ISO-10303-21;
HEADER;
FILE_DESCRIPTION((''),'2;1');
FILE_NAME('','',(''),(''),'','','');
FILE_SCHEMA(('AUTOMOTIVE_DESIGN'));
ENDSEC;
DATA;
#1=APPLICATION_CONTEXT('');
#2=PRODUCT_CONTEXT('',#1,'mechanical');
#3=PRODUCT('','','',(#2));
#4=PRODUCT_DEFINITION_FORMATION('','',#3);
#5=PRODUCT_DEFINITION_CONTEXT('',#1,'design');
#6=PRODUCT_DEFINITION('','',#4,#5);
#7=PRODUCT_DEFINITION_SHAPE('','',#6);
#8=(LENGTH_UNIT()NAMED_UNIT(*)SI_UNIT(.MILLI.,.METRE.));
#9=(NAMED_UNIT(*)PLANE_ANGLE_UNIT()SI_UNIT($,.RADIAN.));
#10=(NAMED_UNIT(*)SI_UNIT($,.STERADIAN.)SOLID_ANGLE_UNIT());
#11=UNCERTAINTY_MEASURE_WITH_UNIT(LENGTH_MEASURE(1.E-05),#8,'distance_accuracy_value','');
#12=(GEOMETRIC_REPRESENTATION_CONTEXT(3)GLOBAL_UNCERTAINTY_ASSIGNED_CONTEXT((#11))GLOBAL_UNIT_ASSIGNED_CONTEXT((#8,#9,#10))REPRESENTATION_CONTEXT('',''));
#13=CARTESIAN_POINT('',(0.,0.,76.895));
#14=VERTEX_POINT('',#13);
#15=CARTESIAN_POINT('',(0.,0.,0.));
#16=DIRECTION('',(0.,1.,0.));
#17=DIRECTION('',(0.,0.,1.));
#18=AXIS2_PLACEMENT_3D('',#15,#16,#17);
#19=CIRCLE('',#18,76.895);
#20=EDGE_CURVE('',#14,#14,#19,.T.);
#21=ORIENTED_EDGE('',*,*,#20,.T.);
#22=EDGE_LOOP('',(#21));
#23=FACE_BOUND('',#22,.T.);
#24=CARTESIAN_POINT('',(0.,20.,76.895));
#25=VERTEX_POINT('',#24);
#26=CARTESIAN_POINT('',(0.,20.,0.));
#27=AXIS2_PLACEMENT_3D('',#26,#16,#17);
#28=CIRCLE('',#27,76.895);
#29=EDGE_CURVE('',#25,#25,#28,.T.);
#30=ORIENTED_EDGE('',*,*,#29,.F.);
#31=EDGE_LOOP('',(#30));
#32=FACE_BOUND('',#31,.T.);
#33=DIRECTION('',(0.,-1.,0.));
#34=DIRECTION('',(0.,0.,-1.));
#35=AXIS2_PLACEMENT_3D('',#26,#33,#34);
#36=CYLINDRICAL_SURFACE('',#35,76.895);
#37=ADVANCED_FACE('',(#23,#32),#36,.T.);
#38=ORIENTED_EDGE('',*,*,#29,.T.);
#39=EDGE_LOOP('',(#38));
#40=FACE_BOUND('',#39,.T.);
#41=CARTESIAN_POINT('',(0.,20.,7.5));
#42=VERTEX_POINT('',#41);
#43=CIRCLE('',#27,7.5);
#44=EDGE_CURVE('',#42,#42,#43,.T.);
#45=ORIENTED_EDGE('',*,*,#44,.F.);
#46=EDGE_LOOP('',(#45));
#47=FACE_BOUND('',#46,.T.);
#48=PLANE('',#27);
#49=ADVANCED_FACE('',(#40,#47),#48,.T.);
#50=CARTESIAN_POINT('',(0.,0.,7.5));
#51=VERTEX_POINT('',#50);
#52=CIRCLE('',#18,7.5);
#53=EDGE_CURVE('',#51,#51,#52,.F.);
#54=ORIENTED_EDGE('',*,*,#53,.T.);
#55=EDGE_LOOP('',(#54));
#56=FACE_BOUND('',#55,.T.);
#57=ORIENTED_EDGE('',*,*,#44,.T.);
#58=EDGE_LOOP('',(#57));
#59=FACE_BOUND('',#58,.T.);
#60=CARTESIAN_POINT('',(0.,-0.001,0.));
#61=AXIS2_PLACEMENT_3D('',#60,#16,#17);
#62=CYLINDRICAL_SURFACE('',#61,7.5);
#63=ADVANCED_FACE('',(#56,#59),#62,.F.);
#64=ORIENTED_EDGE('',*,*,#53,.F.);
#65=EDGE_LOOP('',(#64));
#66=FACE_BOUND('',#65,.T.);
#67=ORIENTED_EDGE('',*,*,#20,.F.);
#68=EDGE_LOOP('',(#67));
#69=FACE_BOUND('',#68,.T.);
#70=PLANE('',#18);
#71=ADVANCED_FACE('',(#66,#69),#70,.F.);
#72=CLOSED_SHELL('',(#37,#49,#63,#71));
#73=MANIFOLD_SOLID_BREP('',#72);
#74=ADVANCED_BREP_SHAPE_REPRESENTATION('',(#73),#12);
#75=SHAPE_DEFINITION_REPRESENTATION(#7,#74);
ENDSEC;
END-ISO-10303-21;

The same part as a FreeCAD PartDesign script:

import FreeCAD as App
import Part
import Sketcher

V = App.Vector
Q = App.Units.Quantity

doc = App.newDocument("Part")
body = doc.addObject("PartDesign::Body", "Body")

sketch1 = doc.addObject("Sketcher::SketchObject", "Sketch")
body.addObject(sketch1)
sketch1.AttachmentSupport = (doc.XZ_Plane, [""])
sketch1.MapMode = "FlatFace"
sketch1.addGeometry(Part.Circle(V(0, 0, 0), V(0, 0, 1), 77), False)
sketch1.addConstraint([
    Sketcher.Constraint("Coincident", 0, 3, -1, 1),
    Sketcher.Constraint("Diameter", 0, Q("153.79 mm")),
])
pad1 = doc.addObject("PartDesign::Pad", "Pad")
body.addObject(pad1)
pad1.Profile = sketch1
pad1.Length = 20
pad1.Reversed = True

sketch2 = doc.addObject("Sketcher::SketchObject", "Sketch001")
body.addObject(sketch2)
sketch2.AttachmentSupport = (doc.XZ_Plane, [""])
sketch2.MapMode = "FlatFace"
sketch2.AttachmentOffset = App.Placement(V(0, 0, -20), App.Rotation())
sketch2.addGeometry(Part.Circle(V(0, 0, 0), V(0, 0, 1), 8), False)
sketch2.addConstraint([
    Sketcher.Constraint("Coincident", 0, 3, -1, 1),
    Sketcher.Constraint("Diameter", 0, Q("15 mm")),
])
pocket1 = doc.addObject("PartDesign::Pocket", "Pocket")
body.addObject(pocket1)
pocket1.Profile = sketch2
pocket1.Type = "UpToFirst"
pocket1.Reversed = True

doc.recompute()
